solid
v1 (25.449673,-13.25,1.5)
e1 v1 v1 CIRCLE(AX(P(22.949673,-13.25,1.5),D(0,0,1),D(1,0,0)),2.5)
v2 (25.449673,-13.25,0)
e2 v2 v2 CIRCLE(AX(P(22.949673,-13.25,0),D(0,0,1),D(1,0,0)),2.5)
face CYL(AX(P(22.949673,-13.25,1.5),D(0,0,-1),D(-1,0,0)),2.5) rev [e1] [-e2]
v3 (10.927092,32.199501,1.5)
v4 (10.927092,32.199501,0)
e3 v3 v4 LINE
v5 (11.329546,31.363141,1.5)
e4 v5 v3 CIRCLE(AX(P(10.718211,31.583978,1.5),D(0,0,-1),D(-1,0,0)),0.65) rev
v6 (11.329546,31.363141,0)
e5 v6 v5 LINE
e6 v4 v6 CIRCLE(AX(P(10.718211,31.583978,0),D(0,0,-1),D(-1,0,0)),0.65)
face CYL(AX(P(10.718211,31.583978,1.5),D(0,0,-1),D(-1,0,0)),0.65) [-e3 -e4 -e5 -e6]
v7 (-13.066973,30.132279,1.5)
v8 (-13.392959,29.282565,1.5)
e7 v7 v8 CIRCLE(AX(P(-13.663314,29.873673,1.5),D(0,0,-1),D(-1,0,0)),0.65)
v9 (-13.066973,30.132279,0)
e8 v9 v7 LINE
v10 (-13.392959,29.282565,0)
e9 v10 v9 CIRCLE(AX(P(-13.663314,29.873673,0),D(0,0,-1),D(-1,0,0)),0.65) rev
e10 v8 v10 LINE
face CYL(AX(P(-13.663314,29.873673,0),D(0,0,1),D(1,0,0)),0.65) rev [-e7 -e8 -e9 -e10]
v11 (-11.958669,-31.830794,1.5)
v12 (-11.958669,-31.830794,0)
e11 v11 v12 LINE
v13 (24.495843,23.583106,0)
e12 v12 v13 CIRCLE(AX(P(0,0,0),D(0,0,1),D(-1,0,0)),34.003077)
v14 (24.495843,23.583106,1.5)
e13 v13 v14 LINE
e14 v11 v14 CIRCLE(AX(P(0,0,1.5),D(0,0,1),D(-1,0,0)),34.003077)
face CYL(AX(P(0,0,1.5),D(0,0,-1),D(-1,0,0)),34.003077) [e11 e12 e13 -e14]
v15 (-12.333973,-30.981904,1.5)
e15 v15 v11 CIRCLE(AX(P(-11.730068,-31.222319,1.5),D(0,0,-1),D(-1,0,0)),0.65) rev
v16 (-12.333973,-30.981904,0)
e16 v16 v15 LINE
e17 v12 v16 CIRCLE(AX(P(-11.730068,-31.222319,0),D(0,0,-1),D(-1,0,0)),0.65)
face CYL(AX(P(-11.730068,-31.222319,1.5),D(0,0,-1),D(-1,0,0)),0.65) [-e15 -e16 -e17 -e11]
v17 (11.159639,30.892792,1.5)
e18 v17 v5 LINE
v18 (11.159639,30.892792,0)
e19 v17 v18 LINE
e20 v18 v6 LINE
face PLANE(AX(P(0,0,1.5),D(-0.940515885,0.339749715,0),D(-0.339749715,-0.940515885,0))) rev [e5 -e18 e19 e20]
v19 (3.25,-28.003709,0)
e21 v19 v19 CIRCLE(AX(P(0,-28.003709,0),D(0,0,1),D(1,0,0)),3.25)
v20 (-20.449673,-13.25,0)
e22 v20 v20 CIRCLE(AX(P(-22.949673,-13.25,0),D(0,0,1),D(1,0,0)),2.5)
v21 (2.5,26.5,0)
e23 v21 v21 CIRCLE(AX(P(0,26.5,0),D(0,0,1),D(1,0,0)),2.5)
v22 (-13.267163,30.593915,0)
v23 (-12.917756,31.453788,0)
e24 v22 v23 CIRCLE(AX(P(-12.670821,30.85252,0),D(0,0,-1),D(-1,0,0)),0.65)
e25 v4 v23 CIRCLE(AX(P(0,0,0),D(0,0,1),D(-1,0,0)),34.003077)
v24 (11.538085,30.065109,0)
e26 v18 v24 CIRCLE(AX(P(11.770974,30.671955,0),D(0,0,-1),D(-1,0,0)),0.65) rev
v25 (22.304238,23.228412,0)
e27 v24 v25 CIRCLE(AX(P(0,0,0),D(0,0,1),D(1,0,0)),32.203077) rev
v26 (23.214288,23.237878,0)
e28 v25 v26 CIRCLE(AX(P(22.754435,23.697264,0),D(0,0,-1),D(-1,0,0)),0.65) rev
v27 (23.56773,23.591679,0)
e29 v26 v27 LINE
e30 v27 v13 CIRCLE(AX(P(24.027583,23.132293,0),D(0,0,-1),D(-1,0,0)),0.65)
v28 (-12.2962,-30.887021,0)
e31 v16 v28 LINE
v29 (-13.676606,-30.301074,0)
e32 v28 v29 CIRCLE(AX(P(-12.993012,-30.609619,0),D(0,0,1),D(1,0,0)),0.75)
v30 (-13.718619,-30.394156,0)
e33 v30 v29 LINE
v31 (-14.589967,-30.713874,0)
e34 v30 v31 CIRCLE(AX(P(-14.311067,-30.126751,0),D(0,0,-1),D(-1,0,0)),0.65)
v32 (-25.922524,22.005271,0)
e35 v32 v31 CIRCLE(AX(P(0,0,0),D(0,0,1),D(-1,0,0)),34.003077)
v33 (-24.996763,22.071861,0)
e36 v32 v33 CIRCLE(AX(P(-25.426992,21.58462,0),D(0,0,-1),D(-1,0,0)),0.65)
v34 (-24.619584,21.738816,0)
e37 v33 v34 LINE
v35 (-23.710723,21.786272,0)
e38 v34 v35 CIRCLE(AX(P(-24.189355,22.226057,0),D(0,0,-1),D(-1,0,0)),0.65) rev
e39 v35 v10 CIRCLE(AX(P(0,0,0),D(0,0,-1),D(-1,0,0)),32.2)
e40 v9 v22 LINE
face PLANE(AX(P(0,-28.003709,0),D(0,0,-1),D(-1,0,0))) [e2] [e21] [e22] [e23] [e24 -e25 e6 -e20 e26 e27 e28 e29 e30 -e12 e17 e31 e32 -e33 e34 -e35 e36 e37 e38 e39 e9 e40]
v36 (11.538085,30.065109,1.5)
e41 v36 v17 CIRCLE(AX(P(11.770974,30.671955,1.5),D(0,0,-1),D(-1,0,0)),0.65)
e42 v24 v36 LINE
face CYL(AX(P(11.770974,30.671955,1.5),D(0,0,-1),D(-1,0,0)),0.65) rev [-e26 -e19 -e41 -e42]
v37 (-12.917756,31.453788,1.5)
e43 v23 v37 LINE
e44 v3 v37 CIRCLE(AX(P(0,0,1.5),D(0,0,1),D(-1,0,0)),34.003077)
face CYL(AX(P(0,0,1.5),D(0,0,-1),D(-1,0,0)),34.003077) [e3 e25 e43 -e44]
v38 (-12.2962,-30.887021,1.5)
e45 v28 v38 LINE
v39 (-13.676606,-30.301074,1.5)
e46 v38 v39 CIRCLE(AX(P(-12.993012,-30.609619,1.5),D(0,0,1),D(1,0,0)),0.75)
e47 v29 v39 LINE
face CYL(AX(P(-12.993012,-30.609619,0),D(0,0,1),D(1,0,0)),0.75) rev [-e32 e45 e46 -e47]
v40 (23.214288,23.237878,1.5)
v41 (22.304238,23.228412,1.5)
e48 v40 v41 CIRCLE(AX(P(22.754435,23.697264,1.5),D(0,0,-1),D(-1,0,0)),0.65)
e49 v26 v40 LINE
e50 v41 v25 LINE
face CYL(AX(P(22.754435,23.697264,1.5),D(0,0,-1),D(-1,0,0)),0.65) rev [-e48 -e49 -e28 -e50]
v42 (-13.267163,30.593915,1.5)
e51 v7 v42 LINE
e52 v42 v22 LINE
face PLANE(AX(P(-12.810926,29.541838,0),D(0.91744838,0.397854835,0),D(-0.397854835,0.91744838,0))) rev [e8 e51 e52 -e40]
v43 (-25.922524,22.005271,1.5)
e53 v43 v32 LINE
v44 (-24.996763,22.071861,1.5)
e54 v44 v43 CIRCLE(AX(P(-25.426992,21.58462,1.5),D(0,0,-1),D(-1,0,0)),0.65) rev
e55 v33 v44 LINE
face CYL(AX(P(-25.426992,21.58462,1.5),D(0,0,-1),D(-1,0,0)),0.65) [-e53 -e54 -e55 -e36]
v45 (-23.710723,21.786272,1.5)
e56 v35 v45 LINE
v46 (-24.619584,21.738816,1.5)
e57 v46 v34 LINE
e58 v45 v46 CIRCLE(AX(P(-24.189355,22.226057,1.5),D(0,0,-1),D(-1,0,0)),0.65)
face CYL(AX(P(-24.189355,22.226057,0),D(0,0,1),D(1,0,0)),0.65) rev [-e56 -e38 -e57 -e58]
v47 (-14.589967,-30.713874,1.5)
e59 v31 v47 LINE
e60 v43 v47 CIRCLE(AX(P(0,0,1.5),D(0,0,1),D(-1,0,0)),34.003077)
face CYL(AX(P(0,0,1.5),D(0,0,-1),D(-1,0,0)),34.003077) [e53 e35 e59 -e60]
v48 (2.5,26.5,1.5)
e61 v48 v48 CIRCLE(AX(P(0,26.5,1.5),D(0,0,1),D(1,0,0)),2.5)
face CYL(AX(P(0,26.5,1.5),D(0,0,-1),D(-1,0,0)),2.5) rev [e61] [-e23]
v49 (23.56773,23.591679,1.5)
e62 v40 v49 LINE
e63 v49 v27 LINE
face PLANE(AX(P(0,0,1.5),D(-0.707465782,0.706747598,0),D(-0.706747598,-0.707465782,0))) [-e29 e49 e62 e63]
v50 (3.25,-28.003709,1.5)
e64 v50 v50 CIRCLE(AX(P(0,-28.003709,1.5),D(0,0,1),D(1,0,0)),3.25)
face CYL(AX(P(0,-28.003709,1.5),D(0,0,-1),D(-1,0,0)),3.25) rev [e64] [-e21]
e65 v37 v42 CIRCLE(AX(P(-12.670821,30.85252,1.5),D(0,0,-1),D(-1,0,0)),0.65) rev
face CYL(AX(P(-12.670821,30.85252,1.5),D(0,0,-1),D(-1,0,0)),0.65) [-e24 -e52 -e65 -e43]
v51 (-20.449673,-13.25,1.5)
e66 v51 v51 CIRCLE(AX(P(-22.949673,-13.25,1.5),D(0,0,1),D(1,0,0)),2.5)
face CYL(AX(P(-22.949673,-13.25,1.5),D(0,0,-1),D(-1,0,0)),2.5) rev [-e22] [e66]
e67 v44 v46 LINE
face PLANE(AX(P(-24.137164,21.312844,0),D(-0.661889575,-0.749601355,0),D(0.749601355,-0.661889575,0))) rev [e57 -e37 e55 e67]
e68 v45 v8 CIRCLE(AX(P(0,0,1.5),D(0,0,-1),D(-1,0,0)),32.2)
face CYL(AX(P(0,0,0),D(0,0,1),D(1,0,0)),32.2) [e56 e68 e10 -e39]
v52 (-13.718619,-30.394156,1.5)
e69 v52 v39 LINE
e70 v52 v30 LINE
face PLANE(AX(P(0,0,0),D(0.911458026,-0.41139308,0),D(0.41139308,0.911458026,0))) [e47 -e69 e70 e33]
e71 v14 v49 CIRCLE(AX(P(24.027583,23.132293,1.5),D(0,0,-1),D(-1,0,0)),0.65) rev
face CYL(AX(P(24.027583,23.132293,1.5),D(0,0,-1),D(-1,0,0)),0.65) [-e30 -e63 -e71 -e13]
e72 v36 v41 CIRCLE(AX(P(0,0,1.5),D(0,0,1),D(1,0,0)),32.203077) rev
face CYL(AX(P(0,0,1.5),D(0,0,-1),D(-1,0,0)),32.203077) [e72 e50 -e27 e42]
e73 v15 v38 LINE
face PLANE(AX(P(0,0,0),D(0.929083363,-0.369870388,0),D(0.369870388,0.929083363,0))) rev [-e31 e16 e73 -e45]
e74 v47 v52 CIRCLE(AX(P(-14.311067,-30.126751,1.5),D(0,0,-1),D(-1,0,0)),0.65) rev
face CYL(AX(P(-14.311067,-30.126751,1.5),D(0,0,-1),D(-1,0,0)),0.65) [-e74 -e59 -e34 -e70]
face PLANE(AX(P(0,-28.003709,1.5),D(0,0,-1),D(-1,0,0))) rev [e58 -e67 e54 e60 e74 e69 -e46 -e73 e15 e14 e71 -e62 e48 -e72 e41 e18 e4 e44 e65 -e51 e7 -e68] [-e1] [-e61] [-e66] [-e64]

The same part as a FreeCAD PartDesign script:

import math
import FreeCAD as App
import Part
import Sketcher
Q = App.Units.Quantity


def edges_at(feature, points):
    """Names of the edges that pass closest to the given points."""
    edges = feature.Shape.Edges
    near = lambda p: min(range(len(edges)), key=lambda i: edges[i].distToShape(Part.Vertex(*p))[0])
    return sorted({f"Edge{near(p) + 1}" for p in points})

doc = App.newDocument("Part")
body = doc.addObject("PartDesign::Body", "Body")

sketch1 = body.newObject("Sketcher::SketchObject", "Sketch")
sketch1.AttachmentSupport = (doc.getObject("XY_Plane"), [""])
sketch1.MapMode = "FlatFace"
sketch1.addGeometry([
    Part.LineSegment(App.Vector(-6.3, -32.9, 0), App.Vector(-5.2, -27, 0)),
    Part.ArcOfCircle(Part.Circle(App.Vector(0, -28, 0), App.Vector(0, 0, 1), 5.3), math.radians(11), math.radians(169)),
    Part.LineSegment(App.Vector(5.2, -27, 0), App.Vector(6.3, -32.9, 0)),
    Part.ArcOfCircle(Part.Circle(App.Vector(6.8, -32.8, 0), App.Vector(0, 0, 1), 0.5), math.radians(-169), math.radians(-78)),
    Part.ArcOfCircle(Part.Circle(App.Vector(0, 0, 0), App.Vector(0, 0, 1), 34), math.radians(-78), math.radians(258)),
    Part.ArcOfCircle(Part.Circle(App.Vector(-6.8, -32.8, 0), App.Vector(0, 0, 1), 0.5), math.radians(-102), math.radians(-11)),
], False)
sketch1.addConstraint([
    Sketcher.Constraint("Tangent", 0, 2, 1, 2),
    Sketcher.Constraint("Tangent", 1, 1, 2, 1),
    Sketcher.Constraint("Tangent", 2, 2, 3, 1),
    Sketcher.Constraint("Tangent", 3, 2, 4, 1),
    Sketcher.Constraint("Tangent", 4, 2, 5, 1),
    Sketcher.Constraint("Tangent", 5, 2, 0, 1),
    Sketcher.Constraint("Coincident", 4, 3, -1, 1),
    Sketcher.Constraint("Equal", 3, 5),
    Sketcher.Constraint("Symmetric", 0, 2, 1, 1, -2),
    Sketcher.Constraint("Radius", 3, Q("0.5 mm")),
    Sketcher.Constraint("Radius", 1, Q("5.250416 mm")),
    Sketcher.Constraint("Radius", 4, Q("34.003077 mm")),
    Sketcher.Constraint("DistanceY", 1, 3, 0, 2, Q("0.984401 mm")),
    Sketcher.Constraint("DistanceX", 0, 2, 2, 2, Q("11.438101 mm")),
])
pad1 = body.newObject("PartDesign::Pad", "Pad")
pad1.Profile = sketch1
pad1.Length = 1.5

sketch2 = body.newObject("Sketcher::SketchObject", "Sketch001")
sketch2.AttachmentSupport = (doc.getObject("XY_Plane"), [""])
sketch2.MapMode = "FlatFace"
sketch2.addGeometry([
    Part.Circle(App.Vector(0, 0, 0), App.Vector(0, 0, 1), 34),
    Part.Circle(App.Vector(0, -28, 0), App.Vector(0, 0, 1), 3.2),
], False)
sketch2.addConstraint([
    Sketcher.Constraint("Coincident", 0, 3, -1, 1),
    Sketcher.Constraint("PointOnObject", 1, 3, -2),
    Sketcher.Constraint("Diameter", 1, Q("6.5 mm")),
    Sketcher.Constraint("Diameter", 0, Q("68.006154 mm")),
    Sketcher.Constraint("DistanceY", 1, 3, -1, 1, Q("28.003709 mm")),
])
pad2 = body.newObject("PartDesign::Pad", "Pad001")
pad2.Profile = sketch2
pad2.Length = 1.5

sketch3 = body.newObject("Sketcher::SketchObject", "Sketch002")
sketch3.AttachmentSupport = (doc.getObject("XY_Plane"), [""])
sketch3.MapMode = "FlatFace"
sketch3.addGeometry([
    Part.ArcOfCircle(Part.Circle(App.Vector(0, 0, 0), App.Vector(0, 0, 1), 32.2), math.radians(45), math.radians(70)),
    Part.LineSegment(App.Vector(22.8, 22.8, 0), App.Vector(24, 24.1, 0)),
    Part.ArcOfCircle(Part.Circle(App.Vector(0, 0, 0), App.Vector(0, 0, 1), 34), math.radians(45), math.radians(70)),
    Part.LineSegment(App.Vector(11.6, 32, 0), App.Vector(10.9, 30.3, 0)),
], False)
sketch3.addConstraint([
    Sketcher.Constraint("Coincident", 0, 1, 1, 1),
    Sketcher.Constraint("Coincident", 1, 2, 2, 1),
    Sketcher.Constraint("Coincident", 2, 2, 3, 1),
    Sketcher.Constraint("Coincident", 3, 2, 0, 2),
    Sketcher.Constraint("Coincident", 0, 3, -1, 1),
    Sketcher.Constraint("Coincident", 2, 3, -1, 1),
    Sketcher.Constraint("Distance", 1, Q("1.8 mm")),
    Sketcher.Constraint("Radius", 0, Q("32.203077 mm")),
    Sketcher.Constraint("DistanceY", 0, 1, 1, 2, Q("1.273438 mm")),
    Sketcher.Constraint("DistanceX", 2, 2, 0, 1, Q("11.206911 mm")),
    Sketcher.Constraint("DistanceY", 0, 1, 2, 2, Q("9.197859 mm")),
    Sketcher.Constraint("DistanceX", 3, 2, 2, 2, Q("0.611549 mm")),
])
pocket1 = body.newObject("PartDesign::Pocket", "Pocket")
pocket1.Profile = sketch3
pocket1.Length = 1.5
pocket1.Reversed = True
doc.recompute()

fillet = body.newObject("PartDesign::Fillet", "Fillet")
fillet.Base = (pocket1, edges_at(pocket1, [
    (11.553, 31.98, 0.75),
    (10.941, 30.288, 0.75),
    (22.759, 22.783, 0.75),
    (24.032, 24.056, 0.75),
]))
fillet.Radius = 0.65

sketch4 = body.newObject("Sketcher::SketchObject", "Sketch003")
sketch4.AttachmentSupport = (doc.getObject("XY_Plane"), [""])
sketch4.MapMode = "FlatFace"
sketch4.addGeometry([
    Part.LineSegment(App.Vector(-25.5, 22.5, 0), App.Vector(-24.1, 21.3, 0)),
    Part.ArcOfCircle(Part.Circle(App.Vector(0, 0, 0), App.Vector(0, 0, 1), 32.2), math.radians(113), math.radians(139)),
    Part.LineSegment(App.Vector(-12.8, 29.5, 0), App.Vector(-13.5, 31.2, 0)),
    Part.ArcOfCircle(Part.Circle(App.Vector(0, 0, 0), App.Vector(0, 0, 1), 34), math.radians(113), math.radians(139)),
], False)
sketch4.addConstraint([
    Sketcher.Constraint("Coincident", 0, 2, 1, 2),
    Sketcher.Constraint("Coincident", 1, 1, 2, 1),
    Sketcher.Constraint("Coincident", 2, 2, 3, 1),
    Sketcher.Constraint("Coincident", 3, 2, 0, 1),
    Sketcher.Constraint("Coincident", 1, 3, -1, 1),
    Sketcher.Constraint("Coincident", 3, 3, -1, 1),
    Sketcher.Constraint("Radius", 1, Q("32.2 mm")),
    Sketcher.Constraint("Radius", 3, Q("34.003077 mm")),
    Sketcher.Constraint("DistanceX", 2, 2, -1, 1, Q("13.528289 mm")),
    Sketcher.Constraint("DistanceY", 1, 1, 2, 2, Q("1.65423 mm")),
    Sketcher.Constraint("DistanceX", 3, 2, 0, 2, Q("1.351589 mm")),
    Sketcher.Constraint("DistanceX", 0, 2, -1, 1, Q("24.137164 mm")),
])
pocket2 = body.newObject("PartDesign::Pocket", "Pocket001")
pocket2.Profile = sketch4
pocket2.Length = 1.5
pocket2.Reversed = True
doc.recompute()

fillet2 = body.newObject("PartDesign::Fillet", "Fillet001")
fillet2.Base = (pocket2, edges_at(pocket2, [
    (-12.811, 29.542, 0.75),
    (-24.137, 21.313, 0.75),
    (-25.489, 22.506, 0.75),
    (-13.528, 31.196, 0.75),
]))
fillet2.Radius = 0.65

sketch5 = body.newObject("Sketcher::SketchObject", "Sketch004")
sketch5.AttachmentSupport = (doc.getObject("XY_Plane"), [""])
sketch5.MapMode = "FlatFace"
sketch5.addGeometry([
    Part.LineSegment(App.Vector(-13.7, -30.3, 0), App.Vector(-14, -31, 0)),
    Part.ArcOfCircle(Part.Circle(App.Vector(0, 0, 0), App.Vector(0, 0, 1), 34), math.radians(-114.29), math.radians(-111.71)),
    Part.LineSegment(App.Vector(-12.6, -31.6, 0), App.Vector(-12.3, -30.9, 0)),
    Part.ArcOfCircle(Part.Circle(App.Vector(-13, -30.6, 0), App.Vector(0, 0, 1), 0.8), math.radians(-22), math.radians(156)),
], False)
sketch5.addConstraint([
    Sketcher.Constraint("Coincident", 0, 2, 1, 1),
    Sketcher.Constraint("Coincident", 1, 2, 2, 1),
    Sketcher.Constraint("Tangent", 2, 2, 3, 1),
    Sketcher.Constraint("Tangent", 3, 2, 0, 1),
    Sketcher.Constraint("Coincident", 1, 3, -1, 1),
    Sketcher.Constraint("Equal", 0, 2),
    Sketcher.Constraint("Radius", 3, Q("0.75 mm")),
    Sketcher.Constraint("Radius", 1, Q("34.003077 mm")),
    Sketcher.Constraint("DistanceX", 2, 2, -1, 1, Q("12.2962 mm")),
    Sketcher.Constraint("DistanceX", 0, 2, 1, 2, Q("1.411899 mm")),
    Sketcher.Constraint("Distance", 0, Q("0.758459 mm")),
])
pocket3 = body.newObject("PartDesign::Pocket", "Pocket002")
pocket3.Profile = sketch5
pocket3.Length = 1.5
pocket3.Reversed = True
doc.recompute()

fillet3 = body.newObject("PartDesign::Fillet", "Fillet002")
fillet3.Base = (pocket3, edges_at(pocket3, [(-12.577, -31.592, 0.75), (-13.989, -30.992, 0.75)]))
fillet3.Radius = 0.65

sketch6 = body.newObject("Sketcher::SketchObject", "Sketch005")
sketch6.AttachmentSupport = (doc.getObject("XY_Plane"), [""])
sketch6.MapMode = "FlatFace"
sketch6.addGeometry([
    Part.Circle(App.Vector(-22.9, -13.2, 0), App.Vector(0, 0, 1), 2.5),
    Part.Circle(App.Vector(22.9, -13.2, 0), App.Vector(0, 0, 1), 2.5),
    Part.Circle(App.Vector(0, 26.5, 0), App.Vector(0, 0, 1), 2.5),
], False)
sketch6.addConstraint([
    Sketcher.Constraint("Equal", 0, 1),
    Sketcher.Constraint("Equal", 1, 2),
    Sketcher.Constraint("Symmetric", 0, 3, 1, 3, -2),
    Sketcher.Constraint("PointOnObject", 2, 3, -2),
    Sketcher.Constraint("Diameter", 0, Q("5 mm")),
    Sketcher.Constraint("DistanceY", -1, 1, 2, 3, Q("26.5 mm")),
    Sketcher.Constraint("DistanceY", 0, 3, -1, 1, Q("13.25 mm")),
    Sketcher.Constraint("DistanceX", 0, 3, -1, 1, Q("22.949673 mm")),
])
pocket4 = body.newObject("PartDesign::Pocket", "Pocket003")
pocket4.Profile = sketch6
pocket4.Type = "ThroughAll"
pocket4.Reversed = True

doc.recompute()
